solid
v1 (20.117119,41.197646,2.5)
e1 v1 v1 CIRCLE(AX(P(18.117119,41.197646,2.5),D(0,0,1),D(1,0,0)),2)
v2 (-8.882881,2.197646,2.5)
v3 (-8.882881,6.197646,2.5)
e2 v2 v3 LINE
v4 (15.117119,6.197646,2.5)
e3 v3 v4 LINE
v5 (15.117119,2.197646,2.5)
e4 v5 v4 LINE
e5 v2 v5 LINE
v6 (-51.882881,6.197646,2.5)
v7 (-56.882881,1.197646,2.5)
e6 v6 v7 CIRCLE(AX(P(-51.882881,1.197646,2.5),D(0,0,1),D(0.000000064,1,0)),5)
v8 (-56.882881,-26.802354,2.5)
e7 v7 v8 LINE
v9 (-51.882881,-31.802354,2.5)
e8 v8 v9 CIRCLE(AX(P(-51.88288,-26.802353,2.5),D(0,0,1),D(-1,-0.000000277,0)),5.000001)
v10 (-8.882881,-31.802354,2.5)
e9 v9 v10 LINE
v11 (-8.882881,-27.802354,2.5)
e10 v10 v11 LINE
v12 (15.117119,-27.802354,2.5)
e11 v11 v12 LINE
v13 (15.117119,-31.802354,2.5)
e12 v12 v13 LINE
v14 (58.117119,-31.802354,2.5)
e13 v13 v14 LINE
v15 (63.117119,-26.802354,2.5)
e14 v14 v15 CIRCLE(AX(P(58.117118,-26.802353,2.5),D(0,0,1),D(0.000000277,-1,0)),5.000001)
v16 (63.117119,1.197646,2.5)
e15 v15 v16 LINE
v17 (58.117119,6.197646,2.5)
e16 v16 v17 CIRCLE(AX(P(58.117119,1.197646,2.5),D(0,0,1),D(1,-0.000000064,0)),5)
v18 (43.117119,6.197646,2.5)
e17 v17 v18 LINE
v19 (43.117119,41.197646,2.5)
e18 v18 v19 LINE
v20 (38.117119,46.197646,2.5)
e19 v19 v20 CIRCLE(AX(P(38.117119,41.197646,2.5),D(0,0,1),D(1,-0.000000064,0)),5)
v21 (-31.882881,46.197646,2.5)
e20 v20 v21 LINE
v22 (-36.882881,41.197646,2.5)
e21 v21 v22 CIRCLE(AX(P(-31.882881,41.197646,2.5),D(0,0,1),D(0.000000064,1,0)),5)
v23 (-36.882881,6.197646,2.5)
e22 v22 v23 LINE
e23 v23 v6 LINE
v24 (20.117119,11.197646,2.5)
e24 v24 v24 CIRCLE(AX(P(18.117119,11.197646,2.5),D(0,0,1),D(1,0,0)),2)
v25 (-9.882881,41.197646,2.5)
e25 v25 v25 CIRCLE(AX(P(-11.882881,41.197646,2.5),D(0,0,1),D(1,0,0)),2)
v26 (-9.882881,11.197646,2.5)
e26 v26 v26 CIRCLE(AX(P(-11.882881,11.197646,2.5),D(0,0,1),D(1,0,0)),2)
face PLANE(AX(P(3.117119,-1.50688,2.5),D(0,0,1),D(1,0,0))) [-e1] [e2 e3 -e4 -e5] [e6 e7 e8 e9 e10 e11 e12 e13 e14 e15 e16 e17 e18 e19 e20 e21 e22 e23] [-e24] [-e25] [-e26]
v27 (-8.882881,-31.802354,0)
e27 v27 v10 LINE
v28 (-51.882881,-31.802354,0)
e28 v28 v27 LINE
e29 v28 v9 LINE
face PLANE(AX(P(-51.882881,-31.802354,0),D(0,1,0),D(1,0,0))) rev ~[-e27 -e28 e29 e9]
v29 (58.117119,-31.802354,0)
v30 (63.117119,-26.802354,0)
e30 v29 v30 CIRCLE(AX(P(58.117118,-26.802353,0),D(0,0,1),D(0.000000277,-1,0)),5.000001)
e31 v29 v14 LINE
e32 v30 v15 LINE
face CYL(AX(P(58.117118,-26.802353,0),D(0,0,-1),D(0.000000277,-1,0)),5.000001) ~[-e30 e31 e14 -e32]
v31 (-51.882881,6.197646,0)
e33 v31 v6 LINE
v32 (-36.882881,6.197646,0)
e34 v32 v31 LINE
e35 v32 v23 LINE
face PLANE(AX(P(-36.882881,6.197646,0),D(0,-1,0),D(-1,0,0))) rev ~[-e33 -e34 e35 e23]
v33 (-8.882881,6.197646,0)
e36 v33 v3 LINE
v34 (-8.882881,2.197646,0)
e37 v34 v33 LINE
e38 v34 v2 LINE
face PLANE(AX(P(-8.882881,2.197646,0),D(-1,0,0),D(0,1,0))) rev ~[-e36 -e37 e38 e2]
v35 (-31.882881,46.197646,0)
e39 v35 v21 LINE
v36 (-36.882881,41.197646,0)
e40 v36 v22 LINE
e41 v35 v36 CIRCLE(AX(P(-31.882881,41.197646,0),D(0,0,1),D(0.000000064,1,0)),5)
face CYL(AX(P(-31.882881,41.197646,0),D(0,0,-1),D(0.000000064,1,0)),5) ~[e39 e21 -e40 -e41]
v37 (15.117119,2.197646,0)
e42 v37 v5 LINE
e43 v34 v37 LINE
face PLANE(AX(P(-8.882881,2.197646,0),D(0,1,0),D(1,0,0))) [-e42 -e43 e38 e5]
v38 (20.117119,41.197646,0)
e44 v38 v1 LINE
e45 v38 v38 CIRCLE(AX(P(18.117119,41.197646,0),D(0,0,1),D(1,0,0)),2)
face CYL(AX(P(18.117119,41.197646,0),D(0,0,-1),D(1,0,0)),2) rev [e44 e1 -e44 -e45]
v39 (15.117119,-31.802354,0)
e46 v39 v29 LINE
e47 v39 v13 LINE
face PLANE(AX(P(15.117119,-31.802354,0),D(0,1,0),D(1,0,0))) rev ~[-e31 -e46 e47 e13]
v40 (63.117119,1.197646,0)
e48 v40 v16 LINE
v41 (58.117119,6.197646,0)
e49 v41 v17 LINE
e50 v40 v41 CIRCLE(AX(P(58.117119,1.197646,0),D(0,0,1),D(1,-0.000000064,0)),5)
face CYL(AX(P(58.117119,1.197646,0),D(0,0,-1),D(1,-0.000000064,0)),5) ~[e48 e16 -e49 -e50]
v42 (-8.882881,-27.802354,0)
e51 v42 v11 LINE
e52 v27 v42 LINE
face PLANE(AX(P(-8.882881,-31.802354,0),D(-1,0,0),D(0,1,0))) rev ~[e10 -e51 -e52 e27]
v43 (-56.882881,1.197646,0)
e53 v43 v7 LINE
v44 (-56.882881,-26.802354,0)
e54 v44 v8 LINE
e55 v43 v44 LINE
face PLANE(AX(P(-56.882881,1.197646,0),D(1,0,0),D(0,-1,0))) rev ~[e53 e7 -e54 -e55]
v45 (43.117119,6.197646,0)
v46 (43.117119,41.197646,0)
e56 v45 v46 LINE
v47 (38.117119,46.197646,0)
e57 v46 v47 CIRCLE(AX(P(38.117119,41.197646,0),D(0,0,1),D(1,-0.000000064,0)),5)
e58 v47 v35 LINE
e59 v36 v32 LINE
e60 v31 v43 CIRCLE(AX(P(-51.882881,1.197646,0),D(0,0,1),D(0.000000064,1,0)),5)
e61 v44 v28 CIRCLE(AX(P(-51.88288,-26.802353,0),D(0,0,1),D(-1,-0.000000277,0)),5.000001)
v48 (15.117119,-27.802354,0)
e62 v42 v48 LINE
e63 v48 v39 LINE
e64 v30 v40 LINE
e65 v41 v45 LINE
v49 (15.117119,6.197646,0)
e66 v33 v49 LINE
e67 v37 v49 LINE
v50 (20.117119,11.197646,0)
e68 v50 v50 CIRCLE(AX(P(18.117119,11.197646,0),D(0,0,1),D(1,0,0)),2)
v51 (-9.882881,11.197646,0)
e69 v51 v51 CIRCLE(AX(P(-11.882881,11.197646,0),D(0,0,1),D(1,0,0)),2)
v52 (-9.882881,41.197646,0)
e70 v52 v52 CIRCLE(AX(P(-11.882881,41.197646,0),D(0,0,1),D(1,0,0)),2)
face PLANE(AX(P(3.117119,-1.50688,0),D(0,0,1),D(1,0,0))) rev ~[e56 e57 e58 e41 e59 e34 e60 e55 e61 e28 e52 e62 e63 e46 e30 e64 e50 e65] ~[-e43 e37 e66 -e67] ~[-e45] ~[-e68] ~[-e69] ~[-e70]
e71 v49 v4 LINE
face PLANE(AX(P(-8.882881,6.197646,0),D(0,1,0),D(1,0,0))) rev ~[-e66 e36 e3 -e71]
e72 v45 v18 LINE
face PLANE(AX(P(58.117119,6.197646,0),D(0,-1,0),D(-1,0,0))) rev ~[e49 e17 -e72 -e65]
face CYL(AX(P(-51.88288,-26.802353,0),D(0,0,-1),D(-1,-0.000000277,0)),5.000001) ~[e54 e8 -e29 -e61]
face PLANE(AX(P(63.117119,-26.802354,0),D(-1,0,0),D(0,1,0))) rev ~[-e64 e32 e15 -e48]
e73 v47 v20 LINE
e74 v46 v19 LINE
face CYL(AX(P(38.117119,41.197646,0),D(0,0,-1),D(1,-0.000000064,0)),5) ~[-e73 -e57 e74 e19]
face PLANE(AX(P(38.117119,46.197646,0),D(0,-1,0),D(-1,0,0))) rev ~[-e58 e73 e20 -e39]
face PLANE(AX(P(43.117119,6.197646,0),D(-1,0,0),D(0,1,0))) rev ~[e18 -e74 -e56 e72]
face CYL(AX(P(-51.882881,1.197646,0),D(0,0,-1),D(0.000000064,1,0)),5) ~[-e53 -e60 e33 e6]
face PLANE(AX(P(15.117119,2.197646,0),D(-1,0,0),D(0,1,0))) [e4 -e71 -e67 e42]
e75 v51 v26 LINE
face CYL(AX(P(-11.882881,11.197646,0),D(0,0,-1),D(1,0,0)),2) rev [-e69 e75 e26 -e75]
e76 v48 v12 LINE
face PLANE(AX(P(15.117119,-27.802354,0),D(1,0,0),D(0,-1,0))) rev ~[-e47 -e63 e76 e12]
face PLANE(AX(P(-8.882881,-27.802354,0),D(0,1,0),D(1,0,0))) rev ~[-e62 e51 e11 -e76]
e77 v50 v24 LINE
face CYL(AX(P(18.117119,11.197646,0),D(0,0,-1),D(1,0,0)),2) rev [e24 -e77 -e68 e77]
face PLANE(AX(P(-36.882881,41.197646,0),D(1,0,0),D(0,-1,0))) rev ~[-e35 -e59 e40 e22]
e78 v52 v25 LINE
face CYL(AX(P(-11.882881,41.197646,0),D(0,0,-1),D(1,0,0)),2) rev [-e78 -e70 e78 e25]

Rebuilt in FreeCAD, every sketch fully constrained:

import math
import FreeCAD as App
import Part
import Sketcher
from FreeCAD import Vector


def add_polygon(sketch, points):
    """Adds a closed chain of lines whose ends are joined by coincident constraints."""
    first, n = sketch.GeometryCount, len(points)
    for a, b in zip(points, points[1:] + points[:1]):
        sketch.addGeometry(Part.LineSegment(App.Vector(*a, 0), App.Vector(*b, 0)), False)
    for i in range(n):
        sketch.addConstraint(Sketcher.Constraint("Coincident", first + i, 2, first + (i + 1) % n, 1))

doc = App.newDocument("Part")
params = doc.addObject("Spreadsheet::Sheet", "Params")
for row, (alias, value) in enumerate([
    ("sketch1_diameter", "4 mm"),
    ("sketch1_radius", "5 mm"),
    ("sketch1_width", "43 mm"),
    ("sketch1_width2", "24 mm"),
    ("sketch1_width3", "15 mm"),
    ("pad1_length", "2.5 mm"),
], start=1):
    params.set(f"A{row}", alias)
    params.set(f"B{row}", "=" + value)
    params.setAlias(f"B{row}", alias)

body = doc.addObject("PartDesign::Body", "Body")

sketch1 = doc.addObject("Sketcher::SketchObject", "Sketch")
body.addObject(sketch1)
sketch1.AttachmentSupport = (doc.XY_Plane, [""])
sketch1.MapMode = "FlatFace"
sketch1.addGeometry(Part.ArcOfCircle(Part.Circle(Vector(-51.9, 1.2, 0), Vector(0, 0, 1), 5), math.radians(90), math.radians(180)), False)
sketch1.addGeometry(Part.LineSegment(Vector(-56.9, 1.2, 0), Vector(-56.9, -26.8, 0)), False)
sketch1.addGeometry(Part.ArcOfCircle(Part.Circle(Vector(-51.9, -26.8, 0), Vector(0, 0, 1), 5), math.radians(-180), math.radians(-90)), False)
sketch1.addGeometry(Part.LineSegment(Vector(-51.9, -31.8, 0), Vector(-8.9, -31.8, 0)), False)
sketch1.addGeometry(Part.LineSegment(Vector(-8.9, -31.8, 0), Vector(-8.9, -27.8, 0)), False)
sketch1.addGeometry(Part.LineSegment(Vector(-8.9, -27.8, 0), Vector(15.1, -27.8, 0)), False)
sketch1.addGeometry(Part.LineSegment(Vector(15.1, -27.8, 0), Vector(15.1, -31.8, 0)), False)
sketch1.addGeometry(Part.LineSegment(Vector(15.1, -31.8, 0), Vector(58.1, -31.8, 0)), False)
sketch1.addGeometry(Part.ArcOfCircle(Part.Circle(Vector(58.1, -26.8, 0), Vector(0, 0, 1), 5), math.radians(-90), math.radians(0)), False)
sketch1.addGeometry(Part.LineSegment(Vector(63.1, -26.8, 0), Vector(63.1, 1.2, 0)), False)
sketch1.addGeometry(Part.ArcOfCircle(Part.Circle(Vector(58.1, 1.2, 0), Vector(0, 0, 1), 5), math.radians(0), math.radians(90)), False)
sketch1.addGeometry(Part.LineSegment(Vector(58.1, 6.2, 0), Vector(43.1, 6.2, 0)), False)
sketch1.addGeometry(Part.LineSegment(Vector(43.1, 6.2, 0), Vector(43.1, 41.2, 0)), False)
sketch1.addGeometry(Part.ArcOfCircle(Part.Circle(Vector(38.1, 41.2, 0), Vector(0, 0, 1), 5), math.radians(0), math.radians(90)), False)
sketch1.addGeometry(Part.LineSegment(Vector(38.1, 46.2, 0), Vector(-31.9, 46.2, 0)), False)
sketch1.addGeometry(Part.ArcOfCircle(Part.Circle(Vector(-31.9, 41.2, 0), Vector(0, 0, 1), 5), math.radians(90), math.radians(180)), False)
sketch1.addGeometry(Part.LineSegment(Vector(-36.9, 41.2, 0), Vector(-36.9, 6.2, 0)), False)
sketch1.addGeometry(Part.LineSegment(Vector(-36.9, 6.2, 0), Vector(-51.9, 6.2, 0)), False)
sketch1.addGeometry(Part.Circle(Vector(-11.9, 11.2, 0), Vector(0, 0, 1), 2), False)
add_polygon(sketch1, [(15.1, 2.2), (-8.9, 2.2), (-8.9, 6.2), (15.1, 6.2)])
sketch1.addGeometry(Part.Circle(Vector(18.1, 11.2, 0), Vector(0, 0, 1), 2), False)
sketch1.addGeometry(Part.Circle(Vector(-11.9, 41.2, 0), Vector(0, 0, 1), 2), False)
sketch1.addGeometry(Part.Circle(Vector(18.1, 41.2, 0), Vector(0, 0, 1), 2), False)
sketch1.addConstraint([
    Sketcher.Constraint("Tangent", 0, 2, 1, 1),
    Sketcher.Constraint("Tangent", 1, 2, 2, 1),
    Sketcher.Constraint("Tangent", 2, 2, 3, 1),
    Sketcher.Constraint("Coincident", 3, 2, 4, 1),
    Sketcher.Constraint("Coincident", 4, 2, 5, 1),
    Sketcher.Constraint("Coincident", 5, 2, 6, 1),
    Sketcher.Constraint("Coincident", 6, 2, 7, 1),
    Sketcher.Constraint("Tangent", 7, 2, 8, 1),
    Sketcher.Constraint("Tangent", 8, 2, 9, 1),
    Sketcher.Constraint("Tangent", 9, 2, 10, 1),
    Sketcher.Constraint("Tangent", 10, 2, 11, 1),
    Sketcher.Constraint("Coincident", 11, 2, 12, 1),
    Sketcher.Constraint("Tangent", 12, 2, 13, 1),
    Sketcher.Constraint("Tangent", 13, 2, 14, 1),
    Sketcher.Constraint("Tangent", 14, 2, 15, 1),
    Sketcher.Constraint("Tangent", 15, 2, 16, 1),
    Sketcher.Constraint("Coincident", 16, 2, 17, 1),
    Sketcher.Constraint("Tangent", 17, 2, 0, 1),
    Sketcher.Constraint("Vertical", 1),
    Sketcher.Constraint("Horizontal", 3),
    Sketcher.Constraint("Vertical", 4),
    Sketcher.Constraint("Horizontal", 5),
    Sketcher.Constraint("Vertical", 6),
    Sketcher.Constraint("Horizontal", 7),
    Sketcher.Constraint("Vertical", 9),
    Sketcher.Constraint("Horizontal", 11),
    Sketcher.Constraint("Vertical", 12),
    Sketcher.Constraint("Horizontal", 14),
    Sketcher.Constraint("Vertical", 16),
    Sketcher.Constraint("Horizontal", 17),
    Sketcher.Constraint("Horizontal", 19),
    Sketcher.Constraint("Vertical", 20),
    Sketcher.Constraint("Horizontal", 21),
    Sketcher.Constraint("Vertical", 22),
    Sketcher.Constraint("Equal", 0, 2),
    Sketcher.Constraint("Equal", 2, 8),
    Sketcher.Constraint("Equal", 8, 10),
    Sketcher.Constraint("Equal", 10, 13),
    Sketcher.Constraint("Equal", 13, 15),
    Sketcher.Constraint("Equal", 18, 23),
    Sketcher.Constraint("Equal", 23, 24),
    Sketcher.Constraint("Equal", 24, 25),
    Sketcher.Constraint("Horizontal", 2, 3, 8, 3),
    Sketcher.Constraint("Horizontal", 0, 3, 10, 3),
    Sketcher.Constraint("Horizontal", 18, 3, 23, 3),
    Sketcher.Constraint("Horizontal", 15, 3, 24, 3),
    Sketcher.Constraint("Horizontal", 24, 3, 25, 3),
    Sketcher.Constraint("Horizontal", 17, 2, 20, 2),
    Sketcher.Constraint("Vertical", 18, 3, 24, 3),
    Sketcher.Constraint("Vertical", 23, 3, 25, 3),
    Sketcher.Constraint("Vertical", 4, 2, 19, 2),
    Sketcher.Constraint("Vertical", 6, 2, 21, 2),
    Sketcher.Constraint("Equal", 3, 7),
    Sketcher.Constraint("Equal", 11, 17),
    Sketcher.Constraint("Equal", 6, 20),
    Sketcher.Constraint("Diameter", 18, 4.0),
    Sketcher.Constraint("Radius", 0, 5.0),
    Sketcher.Constraint("DistanceX", 3, 1, 3, 2, 43.0),
    Sketcher.Constraint("DistanceX", 5, 1, 5, 2, 24.0),
    Sketcher.Constraint("DistanceX", 11, 2, 11, 1, 15.0),
    Sketcher.Constraint("DistanceY", 1, 2, 1, 1, 28.0),
    Sketcher.Constraint("DistanceY", 4, 1, 4, 2, 4.0),
    Sketcher.Constraint("DistanceY", 12, 1, 12, 2, 35.0),
    Sketcher.Constraint("DistanceX", 15, 3, 18, 3, 20.0),
    Sketcher.Constraint("DistanceY", 18, 3, 15, 3, 30.0),
    Sketcher.Constraint("DistanceX", 18, 3, 23, 3, 30.0),
    Sketcher.Constraint("DistanceX", 0, 3, -1, 1, 51.882881),
    Sketcher.Constraint("DistanceY", -1, 1, 0, 3, 1.197646),
])
sketch1.setExpression("Constraints[59]", "Params.sketch1_diameter")
sketch1.setExpression("Constraints[60]", "Params.sketch1_radius")
sketch1.setExpression("Constraints[61]", "Params.sketch1_width")
sketch1.setExpression("Constraints[62]", "Params.sketch1_width2")
sketch1.setExpression("Constraints[63]", "Params.sketch1_width3")
pad1 = doc.addObject("PartDesign::Pad", "Pad")
body.addObject(pad1)
pad1.Profile = sketch1
pad1.setExpression("Length", "Params.pad1_length")

doc.recompute()
